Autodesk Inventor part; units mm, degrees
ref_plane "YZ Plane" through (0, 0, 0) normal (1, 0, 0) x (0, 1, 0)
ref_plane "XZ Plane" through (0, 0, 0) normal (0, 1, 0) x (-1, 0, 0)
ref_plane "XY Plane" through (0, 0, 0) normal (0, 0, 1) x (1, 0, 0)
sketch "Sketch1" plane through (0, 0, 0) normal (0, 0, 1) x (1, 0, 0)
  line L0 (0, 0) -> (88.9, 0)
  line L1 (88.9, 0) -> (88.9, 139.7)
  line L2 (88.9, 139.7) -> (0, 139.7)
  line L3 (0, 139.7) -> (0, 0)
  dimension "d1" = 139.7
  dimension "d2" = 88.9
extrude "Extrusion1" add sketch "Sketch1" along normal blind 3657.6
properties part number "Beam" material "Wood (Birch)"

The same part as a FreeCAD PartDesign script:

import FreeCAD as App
import Part
import Sketcher

V = App.Vector
Q = App.Units.Quantity


def add_polygon(sketch, points):
    """Adds a closed chain of lines whose ends are joined by coincident constraints."""
    first, n = sketch.GeometryCount, len(points)
    for a, b in zip(points, points[1:] + points[:1]):
        sketch.addGeometry(Part.LineSegment(App.Vector(*a, 0), App.Vector(*b, 0)), False)
    for i in range(n):
        sketch.addConstraint(Sketcher.Constraint("Coincident", first + i, 2, first + (i + 1) % n, 1))

doc = App.newDocument("Part")
body = doc.addObject("PartDesign::Body", "Body")

sketch1 = body.newObject("Sketcher::SketchObject", "Sketch")
sketch1.AttachmentSupport = (doc.getObject("XY_Plane"), [""])
sketch1.MapMode = "FlatFace"
add_polygon(sketch1, [(0, 140), (0, 0), (89, 0), (89, 140)])
sketch1.addConstraint([
    Sketcher.Constraint("Vertical", 0),
    Sketcher.Constraint("Horizontal", 1),
    Sketcher.Constraint("Vertical", 2),
    Sketcher.Constraint("Horizontal", 3),
    Sketcher.Constraint("Coincident", 0, 2, -1, 1),
    Sketcher.Constraint("DistanceX", 1, 1, 1, 2, Q("3.5 in")),
    Sketcher.Constraint("DistanceY", 0, 2, 0, 1, Q("5.5 in")),
])
pad1 = body.newObject("PartDesign::Pad", "Pad")
pad1.Profile = sketch1
pad1.Length = Q("144 in")

doc.recompute()
